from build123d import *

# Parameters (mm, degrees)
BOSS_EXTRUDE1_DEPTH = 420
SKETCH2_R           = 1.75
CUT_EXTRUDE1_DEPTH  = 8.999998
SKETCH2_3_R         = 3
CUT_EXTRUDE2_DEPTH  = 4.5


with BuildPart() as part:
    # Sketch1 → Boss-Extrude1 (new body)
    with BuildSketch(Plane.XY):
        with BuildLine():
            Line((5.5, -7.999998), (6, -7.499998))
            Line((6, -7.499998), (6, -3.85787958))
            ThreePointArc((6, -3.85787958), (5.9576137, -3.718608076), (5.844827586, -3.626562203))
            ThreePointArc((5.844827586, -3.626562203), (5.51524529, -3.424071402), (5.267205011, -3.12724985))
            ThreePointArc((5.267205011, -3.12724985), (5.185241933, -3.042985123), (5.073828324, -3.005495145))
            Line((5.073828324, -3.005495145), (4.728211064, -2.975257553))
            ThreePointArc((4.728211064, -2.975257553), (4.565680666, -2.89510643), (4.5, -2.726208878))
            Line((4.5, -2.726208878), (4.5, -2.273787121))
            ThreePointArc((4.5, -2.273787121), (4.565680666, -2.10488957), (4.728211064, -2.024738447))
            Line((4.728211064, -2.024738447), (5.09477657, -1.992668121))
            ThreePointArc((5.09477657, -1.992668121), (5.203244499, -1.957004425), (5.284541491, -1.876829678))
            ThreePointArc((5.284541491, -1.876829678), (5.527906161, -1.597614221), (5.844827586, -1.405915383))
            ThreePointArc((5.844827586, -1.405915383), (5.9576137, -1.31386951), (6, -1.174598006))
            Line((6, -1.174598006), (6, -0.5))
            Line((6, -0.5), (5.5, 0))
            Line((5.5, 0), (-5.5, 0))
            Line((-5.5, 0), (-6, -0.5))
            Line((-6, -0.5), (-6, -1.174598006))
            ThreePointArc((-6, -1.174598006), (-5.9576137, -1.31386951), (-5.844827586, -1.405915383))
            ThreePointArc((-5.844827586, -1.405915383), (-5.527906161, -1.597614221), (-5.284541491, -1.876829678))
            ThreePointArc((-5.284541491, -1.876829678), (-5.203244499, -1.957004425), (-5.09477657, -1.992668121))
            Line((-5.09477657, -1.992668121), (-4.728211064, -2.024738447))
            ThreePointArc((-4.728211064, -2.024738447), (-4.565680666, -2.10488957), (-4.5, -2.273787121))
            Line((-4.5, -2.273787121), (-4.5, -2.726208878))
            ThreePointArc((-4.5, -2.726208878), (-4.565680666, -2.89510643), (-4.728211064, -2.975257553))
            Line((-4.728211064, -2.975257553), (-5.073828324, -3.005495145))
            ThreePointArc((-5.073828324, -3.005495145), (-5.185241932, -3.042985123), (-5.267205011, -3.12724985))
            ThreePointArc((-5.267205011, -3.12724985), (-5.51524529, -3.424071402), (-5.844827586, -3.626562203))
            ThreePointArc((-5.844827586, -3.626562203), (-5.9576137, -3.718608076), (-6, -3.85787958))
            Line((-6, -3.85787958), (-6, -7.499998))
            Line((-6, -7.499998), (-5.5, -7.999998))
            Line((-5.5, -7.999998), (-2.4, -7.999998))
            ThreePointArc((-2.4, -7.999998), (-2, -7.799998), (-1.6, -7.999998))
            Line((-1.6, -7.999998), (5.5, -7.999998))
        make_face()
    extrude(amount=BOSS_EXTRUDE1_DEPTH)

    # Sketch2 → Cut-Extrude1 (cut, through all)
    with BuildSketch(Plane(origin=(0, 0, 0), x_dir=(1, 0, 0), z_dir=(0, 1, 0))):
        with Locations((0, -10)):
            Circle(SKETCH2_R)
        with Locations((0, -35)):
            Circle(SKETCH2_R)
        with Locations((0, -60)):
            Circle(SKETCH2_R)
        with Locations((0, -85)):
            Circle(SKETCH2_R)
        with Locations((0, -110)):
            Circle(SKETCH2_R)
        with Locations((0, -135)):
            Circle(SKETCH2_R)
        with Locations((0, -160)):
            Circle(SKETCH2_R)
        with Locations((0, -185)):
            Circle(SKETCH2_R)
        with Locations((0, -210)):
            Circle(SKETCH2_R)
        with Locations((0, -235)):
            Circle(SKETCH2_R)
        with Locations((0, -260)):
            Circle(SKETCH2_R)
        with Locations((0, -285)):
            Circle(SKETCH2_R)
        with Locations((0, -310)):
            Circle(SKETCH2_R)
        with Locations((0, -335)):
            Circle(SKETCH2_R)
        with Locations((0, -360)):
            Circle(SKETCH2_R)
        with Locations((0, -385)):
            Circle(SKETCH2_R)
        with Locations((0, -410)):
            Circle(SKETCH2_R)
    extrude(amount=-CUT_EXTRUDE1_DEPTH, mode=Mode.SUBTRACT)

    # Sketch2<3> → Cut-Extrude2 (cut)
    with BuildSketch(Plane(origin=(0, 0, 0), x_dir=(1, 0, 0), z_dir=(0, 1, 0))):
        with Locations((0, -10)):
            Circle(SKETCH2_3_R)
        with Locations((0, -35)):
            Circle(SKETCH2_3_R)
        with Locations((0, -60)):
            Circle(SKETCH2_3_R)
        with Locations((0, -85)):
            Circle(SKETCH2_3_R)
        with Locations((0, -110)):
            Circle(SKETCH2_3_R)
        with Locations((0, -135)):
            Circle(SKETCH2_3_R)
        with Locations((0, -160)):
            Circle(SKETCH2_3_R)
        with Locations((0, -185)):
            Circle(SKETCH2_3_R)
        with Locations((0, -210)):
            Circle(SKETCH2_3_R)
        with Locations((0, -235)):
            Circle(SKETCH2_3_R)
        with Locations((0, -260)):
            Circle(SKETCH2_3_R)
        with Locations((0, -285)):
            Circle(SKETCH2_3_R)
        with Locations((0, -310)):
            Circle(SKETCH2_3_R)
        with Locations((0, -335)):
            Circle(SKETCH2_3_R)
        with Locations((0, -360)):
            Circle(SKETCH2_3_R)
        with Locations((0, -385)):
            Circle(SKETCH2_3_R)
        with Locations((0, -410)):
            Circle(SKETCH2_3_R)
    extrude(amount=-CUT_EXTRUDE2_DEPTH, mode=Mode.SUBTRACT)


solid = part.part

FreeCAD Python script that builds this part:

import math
import FreeCAD as App
import Part
import Sketcher
from FreeCAD import Vector
Q = App.Units.Quantity

doc = App.newDocument("Part")
params = doc.addObject("Spreadsheet::Sheet", "Params")
for row, (alias, value) in enumerate([
    ("sketch1_radius", "1.2 mm"),
    ("sketch1_radius2", "0.5 mm"),
    ("sketch1_width", "11 mm"),
    ("sketch1_radius3", "0.25 mm"),
    ("sketch1_width2", "3.1 mm"),
    ("pad1_length", "420 mm"),
    ("sketch2_diameter", "3.5 mm"),
    ("sketch3_diameter", "6 mm"),
    ("pocket2_length", "4.5 mm"),
], start=1):
    params.set(f"A{row}", alias)
    params.set(f"B{row}", "=" + value)
    params.setAlias(f"B{row}", alias)

body = doc.addObject("PartDesign::Body", "Body")

sketch1 = doc.addObject("Sketcher::SketchObject", "Sketch")
body.addObject(sketch1)
sketch1.AttachmentSupport = (doc.XY_Plane, [""])
sketch1.MapMode = "FlatFace"
sketch1.addGeometry([
    Part.LineSegment(Vector(5.5, -8, 0), Vector(6, -7.5, 0)),
    Part.LineSegment(Vector(6, -7.5, 0), Vector(6, -3.86, 0)),
    Part.ArcOfCircle(Part.Circle(Vector(5.75, -3.86, 0), Vector(0, 0, 1), 0.25), math.radians(0), math.radians(68)),
    Part.ArcOfCircle(Part.Circle(Vector(6.3, -2.52, 0), Vector(0, 0, 1), 1.2), math.radians(-149), math.radians(-112)),
    Part.ArcOfCircle(Part.Circle(Vector(5.05, -3.25, 0), Vector(0, 0, 1), 0.25), math.radians(31), math.radians(85)),
    Part.LineSegment(Vector(5.07, -3.01, 0), Vector(4.73, -2.98, 0)),
    Part.ArcOfCircle(Part.Circle(Vector(4.75, -2.73, 0), Vector(0, 0, 1), 0.25), math.radians(-180), math.radians(-95)),
    Part.LineSegment(Vector(4.5, -2.73, 0), Vector(4.5, -2.27, 0)),
    Part.ArcOfCircle(Part.Circle(Vector(4.75, -2.27, 0), Vector(0, 0, 1), 0.25), math.radians(95), math.radians(180)),
    Part.LineSegment(Vector(4.73, -2.02, 0), Vector(5.09, -1.99, 0)),
    Part.ArcOfCircle(Part.Circle(Vector(5.07, -1.74, 0), Vector(0, 0, 1), 0.25), math.radians(-85), math.radians(-32)),
    Part.ArcOfCircle(Part.Circle(Vector(6.3, -2.52, 0), Vector(0, 0, 1), 1.2), math.radians(112), math.radians(148)),
    Part.ArcOfCircle(Part.Circle(Vector(5.75, -1.17, 0), Vector(0, 0, 1), 0.25), math.radians(-68), math.radians(0)),
    Part.LineSegment(Vector(6, -1.17, 0), Vector(6, -0.5, 0)),
    Part.LineSegment(Vector(6, -0.5, 0), Vector(5.5, 0, 0)),
    Part.LineSegment(Vector(5.5, 0, 0), Vector(-5.5, 0, 0)),
    Part.LineSegment(Vector(-5.5, 0, 0), Vector(-6, -0.5, 0)),
    Part.LineSegment(Vector(-6, -0.5, 0), Vector(-6, -1.17, 0)),
    Part.ArcOfCircle(Part.Circle(Vector(-5.75, -1.17, 0), Vector(0, 0, 1), 0.25), math.radians(180), math.radians(248)),
    Part.ArcOfCircle(Part.Circle(Vector(-6.3, -2.52, 0), Vector(0, 0, 1), 1.2), math.radians(32), math.radians(68)),
    Part.ArcOfCircle(Part.Circle(Vector(-5.07, -1.74, 0), Vector(0, 0, 1), 0.25), math.radians(-148), math.radians(-95)),
    Part.LineSegment(Vector(-5.09, -1.99, 0), Vector(-4.73, -2.02, 0)),
    Part.ArcOfCircle(Part.Circle(Vector(-4.75, -2.27, 0), Vector(0, 0, 1), 0.25), math.radians(0), math.radians(85)),
    Part.LineSegment(Vector(-4.5, -2.27, 0), Vector(-4.5, -2.73, 0)),
    Part.ArcOfCircle(Part.Circle(Vector(-4.75, -2.73, 0), Vector(0, 0, 1), 0.25), math.radians(-85), math.radians(0)),
    Part.LineSegment(Vector(-4.73, -2.98, 0), Vector(-5.07, -3.01, 0)),
    Part.ArcOfCircle(Part.Circle(Vector(-5.05, -3.25, 0), Vector(0, 0, 1), 0.25), math.radians(95), math.radians(149)),
    Part.ArcOfCircle(Part.Circle(Vector(-6.3, -2.52, 0), Vector(0, 0, 1), 1.2), math.radians(-68), math.radians(-31)),
    Part.ArcOfCircle(Part.Circle(Vector(-5.75, -3.86, 0), Vector(0, 0, 1), 0.25), math.radians(112), math.radians(180)),
    Part.LineSegment(Vector(-6, -3.86, 0), Vector(-6, -7.5, 0)),
    Part.LineSegment(Vector(-6, -7.5, 0), Vector(-5.5, -8, 0)),
    Part.LineSegment(Vector(-5.5, -8, 0), Vector(-2.4, -8, 0)),
    Part.ArcOfCircle(Part.Circle(Vector(-2, -8.3, 0), Vector(0, 0, 1), 0.5), math.radians(37), math.radians(143)),
    Part.LineSegment(Vector(-1.6, -8, 0), Vector(5.5, -8, 0)),
], False)
sketch1.addConstraint([
    Sketcher.Constraint("Coincident", 0, 2, 1, 1),
    Sketcher.Constraint("Tangent", 1, 2, 2, 1),
    Sketcher.Constraint("Tangent", 2, 2, 3, 2),
    Sketcher.Constraint("Tangent", 3, 1, 4, 1),
    Sketcher.Constraint("Tangent", 4, 2, 5, 1),
    Sketcher.Constraint("Tangent", 5, 2, 6, 2),
    Sketcher.Constraint("Tangent", 6, 1, 7, 1),
    Sketcher.Constraint("Tangent", 7, 2, 8, 2),
    Sketcher.Constraint("Tangent", 8, 1, 9, 1),
    Sketcher.Constraint("Tangent", 9, 2, 10, 1),
    Sketcher.Constraint("Tangent", 10, 2, 11, 2),
    Sketcher.Constraint("Tangent", 11, 1, 12, 1),
    Sketcher.Constraint("Tangent", 12, 2, 13, 1),
    Sketcher.Constraint("Coincident", 13, 2, 14, 1),
    Sketcher.Constraint("Coincident", 14, 2, 15, 1),
    Sketcher.Constraint("Coincident", 15, 2, 16, 1),
    Sketcher.Constraint("Coincident", 16, 2, 17, 1),
    Sketcher.Constraint("Tangent", 17, 2, 18, 1),
    Sketcher.Constraint("Tangent", 18, 2, 19, 2),
    Sketcher.Constraint("Tangent", 19, 1, 20, 1),
    Sketcher.Constraint("Tangent", 20, 2, 21, 1),
    Sketcher.Constraint("Tangent", 21, 2, 22, 2),
    Sketcher.Constraint("Tangent", 22, 1, 23, 1),
    Sketcher.Constraint("Tangent", 23, 2, 24, 2),
    Sketcher.Constraint("Tangent", 24, 1, 25, 1),
    Sketcher.Constraint("Tangent", 25, 2, 26, 1),
    Sketcher.Constraint("Tangent", 26, 2, 27, 2),
    Sketcher.Constraint("Tangent", 27, 1, 28, 1),
    Sketcher.Constraint("Tangent", 28, 2, 29, 1),
    Sketcher.Constraint("Coincident", 29, 2, 30, 1),
    Sketcher.Constraint("Coincident", 30, 2, 31, 1),
    Sketcher.Constraint("Coincident", 31, 2, 32, 2),
    Sketcher.Constraint("Coincident", 32, 1, 33, 1),
    Sketcher.Constraint("Coincident", 33, 2, 0, 1),
    Sketcher.Constraint("Vertical", 1),
    Sketcher.Constraint("Vertical", 7),
    Sketcher.Constraint("Vertical", 13),
    Sketcher.Constraint("Horizontal", 15),
    Sketcher.Constraint("Vertical", 17),
    Sketcher.Constraint("Vertical", 23),
    Sketcher.Constraint("Vertical", 29),
    Sketcher.Constraint("Horizontal", 31),
    Sketcher.Constraint("Horizontal", 33),
    Sketcher.Constraint("Coincident", 11, 3, 3, 3),
    Sketcher.Constraint("Coincident", 27, 3, 19, 3),
    Sketcher.Constraint("Equal", 2, 4),
    Sketcher.Constraint("Equal", 4, 6),
    Sketcher.Constraint("Equal", 6, 8),
    Sketcher.Constraint("Equal", 8, 10),
    Sketcher.Constraint("Equal", 3, 11),
    Sketcher.Constraint("Equal", 10, 12),
    Sketcher.Constraint("Equal", 12, 18),
    Sketcher.Constraint("Equal", 11, 19),
    Sketcher.Constraint("Equal", 18, 20),
    Sketcher.Constraint("Equal", 20, 22),
    Sketcher.Constraint("Equal", 22, 24),
    Sketcher.Constraint("Equal", 24, 26),
    Sketcher.Constraint("Equal", 19, 27),
    Sketcher.Constraint("Equal", 26, 28),
    Sketcher.Constraint("Symmetric", 14, 2, 15, 2, -1, 1),
    Sketcher.Constraint("Symmetric", 12, 3, 18, 3, -2),
    Sketcher.Constraint("Symmetric", 10, 3, 20, 3, -2),
    Sketcher.Constraint("Symmetric", 8, 3, 22, 3, -2),
    Sketcher.Constraint("Symmetric", 5, 2, 24, 1, -2),
    Sketcher.Constraint("Symmetric", 0, 2, 29, 2, -2),
    Sketcher.Constraint("Symmetric", 30, 2, 33, 2, -2),
    Sketcher.Constraint("Perpendicular", 0, 14),
    Sketcher.Constraint("Perpendicular", 14, 16),
    Sketcher.Constraint("Parallel", 5, 21),
    Sketcher.Constraint("Perpendicular", 16, 30),
    Sketcher.Constraint("Vertical", 2, 3, 12, 3),
    Sketcher.Constraint("Vertical", 15, 2, 30, 2),
    Sketcher.Constraint("Radius", 3, Q("1.2 mm")),
    Sketcher.Constraint("Radius", 32, Q("0.5 mm")),
    Sketcher.Constraint("DistanceX", 15, 2, 15, 1, Q("11 mm")),
    Sketcher.Constraint("Angle", 5, Q("175 deg")),
    Sketcher.Constraint("Radius", 2, Q("0.25 mm")),
    Sketcher.Constraint("DistanceX", 31, 1, 31, 2, Q("3.1 mm")),
    Sketcher.Constraint("DistanceX", 33, 1, 33, 2, Q("7.1 mm")),
    Sketcher.Constraint("DistanceX", -1, 1, 0, 2, Q("6 mm")),
    Sketcher.Constraint("DistanceX", 6, 3, 2, 3, Q("1 mm")),
    Sketcher.Constraint("DistanceX", -1, 1, 3, 3, Q("6.3 mm")),
    Sketcher.Constraint("DistanceY", 13, 1, 13, 2, Q("0.674598 mm")),
    Sketcher.Constraint("DistanceX", 4, 2, 2, 2, Q("0.770999 mm")),
    Sketcher.Constraint("DistanceY", 1, 1, 1, 2, Q("3.642118 mm")),
    Sketcher.Constraint("DistanceY", 7, 1, 7, 2, Q("0.452422 mm")),
])
sketch1.setExpression("Constraints[72]", "Params.sketch1_radius")
sketch1.setExpression("Constraints[73]", "Params.sketch1_radius2")
sketch1.setExpression("Constraints[74]", "Params.sketch1_width")
sketch1.setExpression("Constraints[76]", "Params.sketch1_radius3")
sketch1.setExpression("Constraints[77]", "Params.sketch1_width2")
pad1 = doc.addObject("PartDesign::Pad", "Pad")
body.addObject(pad1)
pad1.Profile = sketch1
pad1.setExpression("Length", "Params.pad1_length")

sketch2 = doc.addObject("Sketcher::SketchObject", "Sketch001")
body.addObject(sketch2)
sketch2.AttachmentSupport = (doc.XZ_Plane, [""])
sketch2.MapMode = "FlatFace"
sketch2.addGeometry([
    Part.Circle(Vector(0, 10, 0), Vector(0, 0, 1), 1.8),
    Part.Circle(Vector(0, 35, 0), Vector(0, 0, 1), 1.8),
    Part.Circle(Vector(0, 60, 0), Vector(0, 0, 1), 1.8),
    Part.Circle(Vector(0, 85, 0), Vector(0, 0, 1), 1.8),
    Part.Circle(Vector(0, 110, 0), Vector(0, 0, 1), 1.8),
    Part.Circle(Vector(0, 135, 0), Vector(0, 0, 1), 1.8),
    Part.Circle(Vector(0, 160, 0), Vector(0, 0, 1), 1.8),
    Part.Circle(Vector(0, 185, 0), Vector(0, 0, 1), 1.8),
    Part.Circle(Vector(0, 210, 0), Vector(0, 0, 1), 1.8),
    Part.Circle(Vector(0, 235, 0), Vector(0, 0, 1), 1.8),
    Part.Circle(Vector(0, 260, 0), Vector(0, 0, 1), 1.8),
    Part.Circle(Vector(0, 285, 0), Vector(0, 0, 1), 1.8),
    Part.Circle(Vector(0, 310, 0), Vector(0, 0, 1), 1.8),
    Part.Circle(Vector(0, 335, 0), Vector(0, 0, 1), 1.8),
    Part.Circle(Vector(0, 360, 0), Vector(0, 0, 1), 1.8),
    Part.Circle(Vector(0, 385, 0), Vector(0, 0, 1), 1.8),
    Part.Circle(Vector(0, 410, 0), Vector(0, 0, 1), 1.8),
], False)
sketch2.addConstraint([
    Sketcher.Constraint("Equal", 0, 1),
    Sketcher.Constraint("Equal", 1, 2),
    Sketcher.Constraint("Equal", 2, 3),
    Sketcher.Constraint("Equal", 3, 4),
    Sketcher.Constraint("Equal", 4, 5),
    Sketcher.Constraint("Equal", 5, 6),
    Sketcher.Constraint("Equal", 6, 7),
    Sketcher.Constraint("Equal", 7, 8),
    Sketcher.Constraint("Equal", 8, 9),
    Sketcher.Constraint("Equal", 9, 10),
    Sketcher.Constraint("Equal", 10, 11),
    Sketcher.Constraint("Equal", 11, 12),
    Sketcher.Constraint("Equal", 12, 13),
    Sketcher.Constraint("Equal", 13, 14),
    Sketcher.Constraint("Equal", 14, 15),
    Sketcher.Constraint("Equal", 15, 16),
    Sketcher.Constraint("PointOnObject", 0, 3, -2),
    Sketcher.Constraint("PointOnObject", 1, 3, -2),
    Sketcher.Constraint("PointOnObject", 2, 3, -2),
    Sketcher.Constraint("PointOnObject", 3, 3, -2),
    Sketcher.Constraint("PointOnObject", 4, 3, -2),
    Sketcher.Constraint("PointOnObject", 5, 3, -2),
    Sketcher.Constraint("PointOnObject", 6, 3, -2),
    Sketcher.Constraint("PointOnObject", 7, 3, -2),
    Sketcher.Constraint("PointOnObject", 8, 3, -2),
    Sketcher.Constraint("PointOnObject", 9, 3, -2),
    Sketcher.Constraint("PointOnObject", 10, 3, -2),
    Sketcher.Constraint("PointOnObject", 11, 3, -2),
    Sketcher.Constraint("PointOnObject", 12, 3, -2),
    Sketcher.Constraint("PointOnObject", 13, 3, -2),
    Sketcher.Constraint("PointOnObject", 14, 3, -2),
    Sketcher.Constraint("PointOnObject", 15, 3, -2),
    Sketcher.Constraint("PointOnObject", 16, 3, -2),
    Sketcher.Constraint("Diameter", 0, Q("3.5 mm")),
    Sketcher.Constraint("DistanceY", -1, 1, 0, 3, Q("10 mm")),
    Sketcher.Constraint("DistanceY", -1, 1, 1, 3, Q("35 mm")),
    Sketcher.Constraint("DistanceY", -1, 1, 2, 3, Q("60 mm")),
    Sketcher.Constraint("DistanceY", -1, 1, 3, 3, Q("85 mm")),
    Sketcher.Constraint("DistanceY", -1, 1, 4, 3, Q("110 mm")),
    Sketcher.Constraint("DistanceY", -1, 1, 5, 3, Q("135 mm")),
    Sketcher.Constraint("DistanceY", -1, 1, 6, 3, Q("160 mm")),
    Sketcher.Constraint("DistanceY", -1, 1, 7, 3, Q("185 mm")),
    Sketcher.Constraint("DistanceY", -1, 1, 8, 3, Q("210 mm")),
    Sketcher.Constraint("DistanceY", -1, 1, 9, 3, Q("235 mm")),
    Sketcher.Constraint("DistanceY", -1, 1, 10, 3, Q("260 mm")),
    Sketcher.Constraint("DistanceY", -1, 1, 11, 3, Q("285 mm")),
    Sketcher.Constraint("DistanceY", -1, 1, 12, 3, Q("310 mm")),
    Sketcher.Constraint("DistanceY", -1, 1, 13, 3, Q("335 mm")),
    Sketcher.Constraint("DistanceY", -1, 1, 14, 3, Q("360 mm")),
    Sketcher.Constraint("DistanceY", -1, 1, 15, 3, Q("385 mm")),
    Sketcher.Constraint("DistanceY", -1, 1, 16, 3, Q("410 mm")),
])
sketch2.setExpression("Constraints[33]", "Params.sketch2_diameter")
pocket1 = doc.addObject("PartDesign::Pocket", "Pocket")
body.addObject(pocket1)
pocket1.Profile = sketch2
pocket1.Type = "ThroughAll"
pocket1.Reversed = True

sketch3 = doc.addObject("Sketcher::SketchObject", "Sketch002")
body.addObject(sketch3)
sketch3.AttachmentSupport = (doc.XZ_Plane, [""])
sketch3.MapMode = "FlatFace"
sketch3.addGeometry([
    Part.Circle(Vector(0, 10, 0), Vector(0, 0, 1), 3),
    Part.Circle(Vector(0, 35, 0), Vector(0, 0, 1), 3),
    Part.Circle(Vector(0, 60, 0), Vector(0, 0, 1), 3),
    Part.Circle(Vector(0, 85, 0), Vector(0, 0, 1), 3),
    Part.Circle(Vector(0, 110, 0), Vector(0, 0, 1), 3),
    Part.Circle(Vector(0, 135, 0), Vector(0, 0, 1), 3),
    Part.Circle(Vector(0, 160, 0), Vector(0, 0, 1), 3),
    Part.Circle(Vector(0, 185, 0), Vector(0, 0, 1), 3),
    Part.Circle(Vector(0, 210, 0), Vector(0, 0, 1), 3),
    Part.Circle(Vector(0, 235, 0), Vector(0, 0, 1), 3),
    Part.Circle(Vector(0, 260, 0), Vector(0, 0, 1), 3),
    Part.Circle(Vector(0, 285, 0), Vector(0, 0, 1), 3),
    Part.Circle(Vector(0, 310, 0), Vector(0, 0, 1), 3),
    Part.Circle(Vector(0, 335, 0), Vector(0, 0, 1), 3),
    Part.Circle(Vector(0, 360, 0), Vector(0, 0, 1), 3),
    Part.Circle(Vector(0, 385, 0), Vector(0, 0, 1), 3),
    Part.Circle(Vector(0, 410, 0), Vector(0, 0, 1), 3),
], False)
sketch3.addConstraint([
    Sketcher.Constraint("Equal", 0, 1),
    Sketcher.Constraint("Equal", 1, 2),
    Sketcher.Constraint("Equal", 2, 3),
    Sketcher.Constraint("Equal", 3, 4),
    Sketcher.Constraint("Equal", 4, 5),
    Sketcher.Constraint("Equal", 5, 6),
    Sketcher.Constraint("Equal", 6, 7),
    Sketcher.Constraint("Equal", 7, 8),
    Sketcher.Constraint("Equal", 8, 9),
    Sketcher.Constraint("Equal", 9, 10),
    Sketcher.Constraint("Equal", 10, 11),
    Sketcher.Constraint("Equal", 11, 12),
    Sketcher.Constraint("Equal", 12, 13),
    Sketcher.Constraint("Equal", 13, 14),
    Sketcher.Constraint("Equal", 14, 15),
    Sketcher.Constraint("Equal", 15, 16),
    Sketcher.Constraint("PointOnObject", 0, 3, -2),
    Sketcher.Constraint("PointOnObject", 1, 3, -2),
    Sketcher.Constraint("PointOnObject", 2, 3, -2),
    Sketcher.Constraint("PointOnObject", 3, 3, -2),
    Sketcher.Constraint("PointOnObject", 4, 3, -2),
    Sketcher.Constraint("PointOnObject", 5, 3, -2),
    Sketcher.Constraint("PointOnObject", 6, 3, -2),
    Sketcher.Constraint("PointOnObject", 7, 3, -2),
    Sketcher.Constraint("PointOnObject", 8, 3, -2),
    Sketcher.Constraint("PointOnObject", 9, 3, -2),
    Sketcher.Constraint("PointOnObject", 10, 3, -2),
    Sketcher.Constraint("PointOnObject", 11, 3, -2),
    Sketcher.Constraint("PointOnObject", 12, 3, -2),
    Sketcher.Constraint("PointOnObject", 13, 3, -2),
    Sketcher.Constraint("PointOnObject", 14, 3, -2),
    Sketcher.Constraint("PointOnObject", 15, 3, -2),
    Sketcher.Constraint("PointOnObject", 16, 3, -2),
    Sketcher.Constraint("Diameter", 0, Q("6 mm")),
    Sketcher.Constraint("DistanceY", -1, 1, 0, 3, Q("10 mm")),
    Sketcher.Constraint("DistanceY", -1, 1, 1, 3, Q("35 mm")),
    Sketcher.Constraint("DistanceY", -1, 1, 2, 3, Q("60 mm")),
    Sketcher.Constraint("DistanceY", -1, 1, 3, 3, Q("85 mm")),
    Sketcher.Constraint("DistanceY", -1, 1, 4, 3, Q("110 mm")),
    Sketcher.Constraint("DistanceY", -1, 1, 5, 3, Q("135 mm")),
    Sketcher.Constraint("DistanceY", -1, 1, 6, 3, Q("160 mm")),
    Sketcher.Constraint("DistanceY", -1, 1, 7, 3, Q("185 mm")),
    Sketcher.Constraint("DistanceY", -1, 1, 8, 3, Q("210 mm")),
    Sketcher.Constraint("DistanceY", -1, 1, 9, 3, Q("235 mm")),
    Sketcher.Constraint("DistanceY", -1, 1, 10, 3, Q("260 mm")),
    Sketcher.Constraint("DistanceY", -1, 1, 11, 3, Q("285 mm")),
    Sketcher.Constraint("DistanceY", -1, 1, 12, 3, Q("310 mm")),
    Sketcher.Constraint("DistanceY", -1, 1, 13, 3, Q("335 mm")),
    Sketcher.Constraint("DistanceY", -1, 1, 14, 3, Q("360 mm")),
    Sketcher.Constraint("DistanceY", -1, 1, 15, 3, Q("385 mm")),
    Sketcher.Constraint("DistanceY", -1, 1, 16, 3, Q("410 mm")),
])
sketch3.setExpression("Constraints[33]", "Params.sketch3_diameter")
pocket2 = doc.addObject("PartDesign::Pocket", "Pocket001")
body.addObject(pocket2)
pocket2.Profile = sketch3
pocket2.setExpression("Length", "Params.pocket2_length")
pocket2.Reversed = True

doc.recompute()
